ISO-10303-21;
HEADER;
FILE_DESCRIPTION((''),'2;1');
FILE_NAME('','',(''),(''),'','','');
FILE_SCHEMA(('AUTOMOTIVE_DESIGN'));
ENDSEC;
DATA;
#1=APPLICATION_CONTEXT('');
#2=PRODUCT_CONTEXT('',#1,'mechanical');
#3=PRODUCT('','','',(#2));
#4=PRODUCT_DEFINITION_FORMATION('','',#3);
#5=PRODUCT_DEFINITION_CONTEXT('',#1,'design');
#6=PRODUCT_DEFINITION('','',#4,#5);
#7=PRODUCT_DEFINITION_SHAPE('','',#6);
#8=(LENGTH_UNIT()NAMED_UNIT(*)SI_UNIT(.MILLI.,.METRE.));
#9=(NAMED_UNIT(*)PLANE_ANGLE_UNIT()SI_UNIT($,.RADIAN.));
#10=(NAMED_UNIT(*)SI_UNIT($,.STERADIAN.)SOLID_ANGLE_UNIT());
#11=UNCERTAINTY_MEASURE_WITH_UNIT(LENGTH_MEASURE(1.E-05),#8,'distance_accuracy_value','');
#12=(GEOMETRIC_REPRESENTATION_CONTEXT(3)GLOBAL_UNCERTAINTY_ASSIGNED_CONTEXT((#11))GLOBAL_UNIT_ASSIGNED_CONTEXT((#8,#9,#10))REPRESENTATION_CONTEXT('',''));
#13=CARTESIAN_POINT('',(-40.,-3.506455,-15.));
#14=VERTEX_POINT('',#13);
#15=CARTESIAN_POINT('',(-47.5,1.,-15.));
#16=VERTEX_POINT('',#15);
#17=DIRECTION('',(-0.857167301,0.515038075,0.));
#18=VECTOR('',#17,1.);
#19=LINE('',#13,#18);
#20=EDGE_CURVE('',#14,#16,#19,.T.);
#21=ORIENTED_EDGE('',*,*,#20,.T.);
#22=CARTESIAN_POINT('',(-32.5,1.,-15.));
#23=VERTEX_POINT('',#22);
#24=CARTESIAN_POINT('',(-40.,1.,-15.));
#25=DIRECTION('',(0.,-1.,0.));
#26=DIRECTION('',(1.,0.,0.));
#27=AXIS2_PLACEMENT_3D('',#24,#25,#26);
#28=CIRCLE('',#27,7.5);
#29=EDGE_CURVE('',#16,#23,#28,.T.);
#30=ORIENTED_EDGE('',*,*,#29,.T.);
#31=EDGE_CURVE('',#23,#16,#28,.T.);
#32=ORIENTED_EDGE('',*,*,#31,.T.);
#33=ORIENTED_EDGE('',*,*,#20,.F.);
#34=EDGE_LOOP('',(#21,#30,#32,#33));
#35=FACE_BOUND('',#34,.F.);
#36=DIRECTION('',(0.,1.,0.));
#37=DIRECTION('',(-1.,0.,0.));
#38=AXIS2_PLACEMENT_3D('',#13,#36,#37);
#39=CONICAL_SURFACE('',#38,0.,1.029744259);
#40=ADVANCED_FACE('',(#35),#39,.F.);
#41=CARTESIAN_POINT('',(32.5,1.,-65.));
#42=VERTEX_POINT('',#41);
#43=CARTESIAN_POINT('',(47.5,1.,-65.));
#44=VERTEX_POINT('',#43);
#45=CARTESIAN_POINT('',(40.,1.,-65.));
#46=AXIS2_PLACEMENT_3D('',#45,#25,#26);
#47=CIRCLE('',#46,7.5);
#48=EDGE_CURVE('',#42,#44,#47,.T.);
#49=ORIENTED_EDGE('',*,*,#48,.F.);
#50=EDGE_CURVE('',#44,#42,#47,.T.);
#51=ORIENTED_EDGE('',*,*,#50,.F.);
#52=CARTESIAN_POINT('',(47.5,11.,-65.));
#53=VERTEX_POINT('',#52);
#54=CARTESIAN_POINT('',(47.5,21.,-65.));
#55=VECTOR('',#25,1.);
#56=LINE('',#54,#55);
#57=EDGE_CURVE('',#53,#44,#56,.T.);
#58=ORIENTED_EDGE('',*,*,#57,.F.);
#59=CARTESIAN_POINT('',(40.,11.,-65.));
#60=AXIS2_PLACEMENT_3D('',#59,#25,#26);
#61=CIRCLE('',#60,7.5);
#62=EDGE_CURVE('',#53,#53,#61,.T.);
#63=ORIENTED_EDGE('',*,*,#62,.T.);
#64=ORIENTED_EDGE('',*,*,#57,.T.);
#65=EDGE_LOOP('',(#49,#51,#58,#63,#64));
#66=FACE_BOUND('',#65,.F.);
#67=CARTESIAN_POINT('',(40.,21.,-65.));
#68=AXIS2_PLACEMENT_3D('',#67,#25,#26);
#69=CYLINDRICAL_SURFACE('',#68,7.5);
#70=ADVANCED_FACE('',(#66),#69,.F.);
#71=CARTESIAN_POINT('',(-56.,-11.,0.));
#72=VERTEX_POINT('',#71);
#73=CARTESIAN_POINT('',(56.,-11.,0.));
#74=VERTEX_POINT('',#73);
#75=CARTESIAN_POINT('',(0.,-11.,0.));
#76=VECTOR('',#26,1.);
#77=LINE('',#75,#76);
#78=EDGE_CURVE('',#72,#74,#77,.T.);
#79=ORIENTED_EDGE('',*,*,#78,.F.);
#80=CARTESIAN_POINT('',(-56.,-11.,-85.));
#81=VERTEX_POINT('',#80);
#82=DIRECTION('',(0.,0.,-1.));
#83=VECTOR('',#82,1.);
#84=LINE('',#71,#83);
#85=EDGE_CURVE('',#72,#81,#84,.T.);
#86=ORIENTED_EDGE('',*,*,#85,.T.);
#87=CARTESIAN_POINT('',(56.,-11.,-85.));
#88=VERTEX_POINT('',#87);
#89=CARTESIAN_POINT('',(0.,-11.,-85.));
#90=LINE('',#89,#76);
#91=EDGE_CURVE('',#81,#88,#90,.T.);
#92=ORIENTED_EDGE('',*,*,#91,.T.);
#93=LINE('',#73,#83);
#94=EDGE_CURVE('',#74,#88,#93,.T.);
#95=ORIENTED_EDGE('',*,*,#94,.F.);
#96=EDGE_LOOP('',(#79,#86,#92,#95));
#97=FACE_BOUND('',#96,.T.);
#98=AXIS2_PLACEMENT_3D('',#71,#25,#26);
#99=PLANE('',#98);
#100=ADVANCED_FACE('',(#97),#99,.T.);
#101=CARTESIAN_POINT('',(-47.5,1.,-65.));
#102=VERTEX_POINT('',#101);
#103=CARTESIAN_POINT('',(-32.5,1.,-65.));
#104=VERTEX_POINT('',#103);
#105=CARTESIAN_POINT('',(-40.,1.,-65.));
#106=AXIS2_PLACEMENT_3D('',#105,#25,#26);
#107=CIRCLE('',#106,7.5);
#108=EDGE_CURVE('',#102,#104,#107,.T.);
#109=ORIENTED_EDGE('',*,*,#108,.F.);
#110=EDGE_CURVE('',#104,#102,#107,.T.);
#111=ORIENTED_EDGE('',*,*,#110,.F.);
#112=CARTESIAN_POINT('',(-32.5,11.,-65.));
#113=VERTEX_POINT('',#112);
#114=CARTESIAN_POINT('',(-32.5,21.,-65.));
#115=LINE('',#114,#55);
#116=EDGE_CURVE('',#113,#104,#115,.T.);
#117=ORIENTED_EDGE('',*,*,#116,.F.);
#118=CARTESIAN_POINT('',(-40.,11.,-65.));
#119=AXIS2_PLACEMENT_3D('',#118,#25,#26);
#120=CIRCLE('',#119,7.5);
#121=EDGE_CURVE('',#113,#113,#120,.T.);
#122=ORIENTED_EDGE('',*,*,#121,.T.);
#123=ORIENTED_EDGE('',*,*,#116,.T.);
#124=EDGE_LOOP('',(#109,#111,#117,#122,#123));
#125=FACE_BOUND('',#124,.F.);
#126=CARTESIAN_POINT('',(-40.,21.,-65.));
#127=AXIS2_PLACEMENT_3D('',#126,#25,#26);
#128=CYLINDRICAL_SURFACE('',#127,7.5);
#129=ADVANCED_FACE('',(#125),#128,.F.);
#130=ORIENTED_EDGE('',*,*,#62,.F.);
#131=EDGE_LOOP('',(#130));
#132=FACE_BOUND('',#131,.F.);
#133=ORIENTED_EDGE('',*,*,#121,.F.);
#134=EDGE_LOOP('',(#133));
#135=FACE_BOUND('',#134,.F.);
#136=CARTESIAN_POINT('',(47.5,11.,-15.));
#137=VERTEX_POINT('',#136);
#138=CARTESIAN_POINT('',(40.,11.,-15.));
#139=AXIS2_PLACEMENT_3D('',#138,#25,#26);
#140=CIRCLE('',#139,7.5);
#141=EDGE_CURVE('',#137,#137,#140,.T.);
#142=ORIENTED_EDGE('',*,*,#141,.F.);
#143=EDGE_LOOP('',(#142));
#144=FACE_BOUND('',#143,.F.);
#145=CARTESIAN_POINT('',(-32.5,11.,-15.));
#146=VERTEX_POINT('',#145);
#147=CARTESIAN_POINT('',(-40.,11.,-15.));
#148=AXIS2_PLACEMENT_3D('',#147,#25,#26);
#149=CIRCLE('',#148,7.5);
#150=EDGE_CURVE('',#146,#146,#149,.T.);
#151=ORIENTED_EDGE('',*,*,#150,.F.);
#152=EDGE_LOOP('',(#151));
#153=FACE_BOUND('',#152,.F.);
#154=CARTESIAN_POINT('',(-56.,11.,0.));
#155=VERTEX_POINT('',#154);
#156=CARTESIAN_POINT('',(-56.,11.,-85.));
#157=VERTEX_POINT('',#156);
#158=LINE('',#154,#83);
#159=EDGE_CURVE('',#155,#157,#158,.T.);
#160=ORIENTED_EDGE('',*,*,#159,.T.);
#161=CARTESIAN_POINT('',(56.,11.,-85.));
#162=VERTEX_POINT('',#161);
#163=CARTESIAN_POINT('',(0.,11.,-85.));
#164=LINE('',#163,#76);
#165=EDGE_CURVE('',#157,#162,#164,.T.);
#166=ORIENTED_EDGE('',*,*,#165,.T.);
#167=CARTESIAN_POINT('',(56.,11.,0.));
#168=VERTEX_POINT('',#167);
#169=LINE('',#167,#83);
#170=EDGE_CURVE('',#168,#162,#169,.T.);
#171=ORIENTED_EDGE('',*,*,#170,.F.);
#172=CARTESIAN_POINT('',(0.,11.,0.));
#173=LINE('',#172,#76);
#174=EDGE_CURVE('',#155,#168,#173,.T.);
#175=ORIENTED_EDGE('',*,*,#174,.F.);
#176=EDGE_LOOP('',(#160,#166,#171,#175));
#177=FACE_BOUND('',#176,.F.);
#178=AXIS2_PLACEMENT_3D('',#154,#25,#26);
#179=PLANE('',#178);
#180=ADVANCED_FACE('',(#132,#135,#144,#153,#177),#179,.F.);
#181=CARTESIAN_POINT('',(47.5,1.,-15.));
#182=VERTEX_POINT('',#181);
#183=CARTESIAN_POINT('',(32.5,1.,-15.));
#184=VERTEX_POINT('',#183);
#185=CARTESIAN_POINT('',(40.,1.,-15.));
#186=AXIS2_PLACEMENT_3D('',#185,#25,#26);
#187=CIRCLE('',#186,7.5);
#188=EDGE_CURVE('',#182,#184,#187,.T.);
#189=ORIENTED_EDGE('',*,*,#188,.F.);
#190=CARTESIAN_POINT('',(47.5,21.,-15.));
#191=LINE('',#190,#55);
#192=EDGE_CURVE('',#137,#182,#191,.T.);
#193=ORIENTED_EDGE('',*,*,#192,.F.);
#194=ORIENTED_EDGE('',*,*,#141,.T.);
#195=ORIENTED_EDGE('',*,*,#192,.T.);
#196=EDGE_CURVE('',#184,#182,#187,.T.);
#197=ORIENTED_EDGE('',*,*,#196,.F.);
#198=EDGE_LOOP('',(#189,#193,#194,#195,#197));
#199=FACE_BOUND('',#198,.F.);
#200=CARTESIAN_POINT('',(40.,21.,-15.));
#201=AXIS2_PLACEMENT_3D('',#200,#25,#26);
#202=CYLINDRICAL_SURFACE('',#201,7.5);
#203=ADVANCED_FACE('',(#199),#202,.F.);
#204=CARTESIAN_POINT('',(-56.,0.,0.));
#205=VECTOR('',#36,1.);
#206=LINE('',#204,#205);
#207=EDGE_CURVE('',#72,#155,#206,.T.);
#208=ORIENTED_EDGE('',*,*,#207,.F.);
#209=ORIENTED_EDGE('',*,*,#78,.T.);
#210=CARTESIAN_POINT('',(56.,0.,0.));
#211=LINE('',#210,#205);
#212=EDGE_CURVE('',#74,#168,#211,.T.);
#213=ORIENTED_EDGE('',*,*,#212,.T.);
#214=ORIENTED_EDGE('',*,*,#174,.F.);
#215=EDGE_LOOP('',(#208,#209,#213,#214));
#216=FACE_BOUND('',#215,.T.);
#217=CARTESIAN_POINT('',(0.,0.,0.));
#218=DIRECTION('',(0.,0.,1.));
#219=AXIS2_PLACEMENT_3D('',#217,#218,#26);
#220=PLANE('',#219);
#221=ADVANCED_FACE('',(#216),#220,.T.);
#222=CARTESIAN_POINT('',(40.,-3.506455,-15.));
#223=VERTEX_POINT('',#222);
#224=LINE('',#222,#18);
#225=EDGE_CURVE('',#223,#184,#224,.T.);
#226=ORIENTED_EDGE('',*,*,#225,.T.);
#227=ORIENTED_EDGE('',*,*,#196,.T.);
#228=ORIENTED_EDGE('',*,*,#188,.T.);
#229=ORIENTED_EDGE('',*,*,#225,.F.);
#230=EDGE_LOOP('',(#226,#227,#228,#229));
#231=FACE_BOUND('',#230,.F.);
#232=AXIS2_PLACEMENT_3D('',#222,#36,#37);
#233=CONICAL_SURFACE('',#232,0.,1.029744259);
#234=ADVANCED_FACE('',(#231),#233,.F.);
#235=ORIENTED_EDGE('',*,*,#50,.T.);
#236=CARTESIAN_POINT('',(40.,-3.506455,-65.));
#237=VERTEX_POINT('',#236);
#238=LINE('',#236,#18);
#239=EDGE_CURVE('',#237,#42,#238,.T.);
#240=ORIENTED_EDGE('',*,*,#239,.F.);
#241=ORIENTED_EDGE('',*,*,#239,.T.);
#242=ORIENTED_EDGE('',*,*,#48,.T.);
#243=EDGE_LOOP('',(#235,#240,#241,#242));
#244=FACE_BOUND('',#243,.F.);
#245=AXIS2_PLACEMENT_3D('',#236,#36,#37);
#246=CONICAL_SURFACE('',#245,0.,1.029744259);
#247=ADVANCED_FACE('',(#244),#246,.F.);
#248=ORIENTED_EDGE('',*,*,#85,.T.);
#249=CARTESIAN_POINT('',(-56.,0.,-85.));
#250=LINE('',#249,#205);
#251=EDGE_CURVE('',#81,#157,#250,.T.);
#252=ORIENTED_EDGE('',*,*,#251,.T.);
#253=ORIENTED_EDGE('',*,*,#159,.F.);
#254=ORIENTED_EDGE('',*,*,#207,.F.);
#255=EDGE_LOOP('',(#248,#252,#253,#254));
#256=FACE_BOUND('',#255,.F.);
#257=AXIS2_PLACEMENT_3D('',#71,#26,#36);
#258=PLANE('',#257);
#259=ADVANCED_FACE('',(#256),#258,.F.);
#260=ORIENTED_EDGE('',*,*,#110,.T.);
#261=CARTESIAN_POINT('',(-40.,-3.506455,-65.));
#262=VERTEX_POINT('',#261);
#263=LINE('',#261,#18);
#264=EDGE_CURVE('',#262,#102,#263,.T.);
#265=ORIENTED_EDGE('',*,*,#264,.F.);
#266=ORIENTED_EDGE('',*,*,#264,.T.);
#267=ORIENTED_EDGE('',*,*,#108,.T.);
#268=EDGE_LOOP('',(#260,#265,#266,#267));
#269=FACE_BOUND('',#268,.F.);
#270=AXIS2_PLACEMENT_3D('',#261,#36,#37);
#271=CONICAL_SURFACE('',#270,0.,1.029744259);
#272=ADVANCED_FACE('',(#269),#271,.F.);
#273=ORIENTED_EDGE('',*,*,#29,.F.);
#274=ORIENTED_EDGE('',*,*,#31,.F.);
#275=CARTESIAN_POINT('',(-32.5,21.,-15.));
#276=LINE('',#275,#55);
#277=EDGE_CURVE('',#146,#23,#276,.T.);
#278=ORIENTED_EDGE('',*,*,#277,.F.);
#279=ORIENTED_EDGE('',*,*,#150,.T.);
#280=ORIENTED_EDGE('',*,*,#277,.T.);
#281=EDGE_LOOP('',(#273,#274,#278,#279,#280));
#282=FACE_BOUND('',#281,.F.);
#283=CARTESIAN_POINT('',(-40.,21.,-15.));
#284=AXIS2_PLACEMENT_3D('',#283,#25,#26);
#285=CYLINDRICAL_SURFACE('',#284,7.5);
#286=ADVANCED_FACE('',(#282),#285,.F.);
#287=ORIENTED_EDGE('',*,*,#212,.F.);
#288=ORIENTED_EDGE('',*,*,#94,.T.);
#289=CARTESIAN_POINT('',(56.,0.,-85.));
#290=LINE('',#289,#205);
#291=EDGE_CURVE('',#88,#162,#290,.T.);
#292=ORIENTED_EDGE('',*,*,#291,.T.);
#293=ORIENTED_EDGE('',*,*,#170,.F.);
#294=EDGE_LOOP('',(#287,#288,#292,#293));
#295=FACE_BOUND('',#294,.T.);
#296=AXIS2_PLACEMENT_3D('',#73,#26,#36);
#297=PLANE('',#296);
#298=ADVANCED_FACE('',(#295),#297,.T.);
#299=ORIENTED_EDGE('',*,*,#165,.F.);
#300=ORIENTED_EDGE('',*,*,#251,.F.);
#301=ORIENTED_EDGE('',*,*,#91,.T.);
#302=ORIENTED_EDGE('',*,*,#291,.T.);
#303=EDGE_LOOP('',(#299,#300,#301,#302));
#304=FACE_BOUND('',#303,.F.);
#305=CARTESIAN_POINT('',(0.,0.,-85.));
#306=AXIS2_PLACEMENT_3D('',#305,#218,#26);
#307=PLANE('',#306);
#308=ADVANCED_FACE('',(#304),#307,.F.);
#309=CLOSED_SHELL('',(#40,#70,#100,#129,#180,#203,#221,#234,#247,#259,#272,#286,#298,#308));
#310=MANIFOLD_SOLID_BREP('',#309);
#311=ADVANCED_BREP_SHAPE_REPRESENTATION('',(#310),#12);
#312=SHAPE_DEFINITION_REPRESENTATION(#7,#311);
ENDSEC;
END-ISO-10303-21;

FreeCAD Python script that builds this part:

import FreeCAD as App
import Part
import Sketcher
from FreeCAD import Vector
Q = App.Units.Quantity

doc = App.newDocument("Part")
body = doc.addObject("PartDesign::Body", "Body")

# Sketch on XY plane
sketch1 = body.newObject("Sketcher::SketchObject", "Sketch")
sketch1.AttachmentSupport = (doc.getObject("XY_Plane"), [""])
sketch1.MapMode = "FlatFace"
sketch1.addGeometry([
    Part.LineSegment(Vector(-56, 11, 0), Vector(-56, -11, 0)),
    Part.LineSegment(Vector(-56, -11, 0), Vector(56, -11, 0)),
    Part.LineSegment(Vector(56, -11, 0), Vector(56, 11, 0)),
    Part.LineSegment(Vector(56, 11, 0), Vector(-56, 11, 0)),
], False)
sketch1.addConstraint([
    Sketcher.Constraint("Coincident", 0, 2, 1, 1),
    Sketcher.Constraint("Coincident", 1, 2, 2, 1),
    Sketcher.Constraint("Coincident", 2, 2, 3, 1),
    Sketcher.Constraint("Coincident", 3, 2, 0, 1),
    Sketcher.Constraint("Vertical", 0),
    Sketcher.Constraint("Horizontal", 1),
    Sketcher.Constraint("Vertical", 2),
    Sketcher.Constraint("Horizontal", 3),
    Sketcher.Constraint("Symmetric", 0, 2, 2, 2, -1, 1),
    Sketcher.Constraint("DistanceX", 1, 1, 1, 2, Q("112 mm")),
    Sketcher.Constraint("DistanceY", 0, 2, 0, 1, Q("22 mm")),
])
pad1 = body.newObject("PartDesign::Pad", "Pad")
pad1.Profile = sketch1
pad1.Length = 85
pad1.Reversed = True

# Sketch on XZ plane
sketch2 = body.newObject("Sketcher::SketchObject", "Sketch001")
sketch2.AttachmentSupport = (doc.getObject("XZ_Plane"), [""])
sketch2.MapMode = "FlatFace"
sketch2.AttachmentOffset = App.Placement(Vector(0, 0, -11), App.Rotation())
sketch2.addGeometry([
    Part.Circle(Vector(40, -15, 0), Vector(0, 0, 1), 7.5),
    Part.Circle(Vector(-40, -15, 0), Vector(0, 0, 1), 7.5),
    Part.Circle(Vector(-40, -65, 0), Vector(0, 0, 1), 7.5),
    Part.Circle(Vector(40, -65, 0), Vector(0, 0, 1), 7.5),
], False)
sketch2.addConstraint([
    Sketcher.Constraint("Equal", 0, 1),
    Sketcher.Constraint("Equal", 1, 2),
    Sketcher.Constraint("Equal", 2, 3),
    Sketcher.Constraint("Symmetric", 0, 3, 1, 3, -2),
    Sketcher.Constraint("Symmetric", 2, 3, 3, 3, -2),
    Sketcher.Constraint("Vertical", 1, 3, 2, 3),
    Sketcher.Constraint("Diameter", 0, Q("15 mm")),
    Sketcher.Constraint("DistanceX", -1, 1, 0, 3, Q("40 mm")),
    Sketcher.Constraint("DistanceY", 0, 3, -1, 1, Q("15 mm")),
    Sketcher.Constraint("DistanceY", 2, 3, -1, 1, Q("65 mm")),
])
doc.recompute()
hole = body.newObject("PartDesign::Hole", "Hole")
hole.Profile = sketch2
hole.ThreadType = "None"
hole.Diameter = 15
hole.DepthType = "Dimension"
hole.Depth = 10
hole.DrillPoint = "Angled"
hole.DrillPointAngle = 118
hole.Reversed = True

doc.recompute()
